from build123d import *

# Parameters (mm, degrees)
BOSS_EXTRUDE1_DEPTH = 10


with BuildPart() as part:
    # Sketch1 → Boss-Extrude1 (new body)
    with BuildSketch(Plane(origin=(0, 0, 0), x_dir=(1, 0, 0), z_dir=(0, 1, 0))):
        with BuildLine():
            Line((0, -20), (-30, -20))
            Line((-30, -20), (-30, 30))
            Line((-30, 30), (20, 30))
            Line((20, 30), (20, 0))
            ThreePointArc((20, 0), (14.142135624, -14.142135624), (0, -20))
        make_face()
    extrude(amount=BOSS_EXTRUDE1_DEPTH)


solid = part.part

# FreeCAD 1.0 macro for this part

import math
import FreeCAD as App
import Part
import Sketcher

V = App.Vector
Q = App.Units.Quantity

doc = App.newDocument("Part")
body = doc.addObject("PartDesign::Body", "Body")

# Sketch on XZ plane
sketch1 = body.newObject("Sketcher::SketchObject", "Sketch")
sketch1.AttachmentSupport = (doc.getObject("XZ_Plane"), [""])
sketch1.MapMode = "FlatFace"
sketch1.addGeometry(Part.LineSegment(V(-30, 20, 0), V(0, 20, 0)), False)
sketch1.addGeometry(Part.ArcOfCircle(Part.Circle(V(0, 0, 0), V(0, 0, 1), 20), math.radians(0), math.radians(90)), False)
sketch1.addGeometry(Part.LineSegment(V(20, 0, 0), V(20, -30, 0)), False)
sketch1.addGeometry(Part.LineSegment(V(20, -30, 0), V(-30, -30, 0)), False)
sketch1.addGeometry(Part.LineSegment(V(-30, -30, 0), V(-30, 20, 0)), False)
sketch1.addConstraint(Sketcher.Constraint("Tangent", 0, 2, 1, 2))
sketch1.addConstraint(Sketcher.Constraint("Tangent", 1, 1, 2, 1))
sketch1.addConstraint(Sketcher.Constraint("Coincident", 2, 2, 3, 1))
sketch1.addConstraint(Sketcher.Constraint("Coincident", 3, 2, 4, 1))
sketch1.addConstraint(Sketcher.Constraint("Coincident", 4, 2, 0, 1))
sketch1.addConstraint(Sketcher.Constraint("Horizontal", 0))
sketch1.addConstraint(Sketcher.Constraint("Vertical", 2))
sketch1.addConstraint(Sketcher.Constraint("Horizontal", 3))
sketch1.addConstraint(Sketcher.Constraint("Vertical", 4))
sketch1.addConstraint(Sketcher.Constraint("Coincident", 1, 3, -1, 1))
sketch1.addConstraint(Sketcher.Constraint("Equal", 0, 2))
sketch1.addConstraint(Sketcher.Constraint("Radius", 1, Q("20 mm")))
sketch1.addConstraint(Sketcher.Constraint("DistanceX", 0, 1, 0, 2, Q("30 mm")))
pad1 = body.newObject("PartDesign::Pad", "Pad")
pad1.Profile = sketch1
pad1.Length = 10
pad1.Reversed = True

doc.recompute()
